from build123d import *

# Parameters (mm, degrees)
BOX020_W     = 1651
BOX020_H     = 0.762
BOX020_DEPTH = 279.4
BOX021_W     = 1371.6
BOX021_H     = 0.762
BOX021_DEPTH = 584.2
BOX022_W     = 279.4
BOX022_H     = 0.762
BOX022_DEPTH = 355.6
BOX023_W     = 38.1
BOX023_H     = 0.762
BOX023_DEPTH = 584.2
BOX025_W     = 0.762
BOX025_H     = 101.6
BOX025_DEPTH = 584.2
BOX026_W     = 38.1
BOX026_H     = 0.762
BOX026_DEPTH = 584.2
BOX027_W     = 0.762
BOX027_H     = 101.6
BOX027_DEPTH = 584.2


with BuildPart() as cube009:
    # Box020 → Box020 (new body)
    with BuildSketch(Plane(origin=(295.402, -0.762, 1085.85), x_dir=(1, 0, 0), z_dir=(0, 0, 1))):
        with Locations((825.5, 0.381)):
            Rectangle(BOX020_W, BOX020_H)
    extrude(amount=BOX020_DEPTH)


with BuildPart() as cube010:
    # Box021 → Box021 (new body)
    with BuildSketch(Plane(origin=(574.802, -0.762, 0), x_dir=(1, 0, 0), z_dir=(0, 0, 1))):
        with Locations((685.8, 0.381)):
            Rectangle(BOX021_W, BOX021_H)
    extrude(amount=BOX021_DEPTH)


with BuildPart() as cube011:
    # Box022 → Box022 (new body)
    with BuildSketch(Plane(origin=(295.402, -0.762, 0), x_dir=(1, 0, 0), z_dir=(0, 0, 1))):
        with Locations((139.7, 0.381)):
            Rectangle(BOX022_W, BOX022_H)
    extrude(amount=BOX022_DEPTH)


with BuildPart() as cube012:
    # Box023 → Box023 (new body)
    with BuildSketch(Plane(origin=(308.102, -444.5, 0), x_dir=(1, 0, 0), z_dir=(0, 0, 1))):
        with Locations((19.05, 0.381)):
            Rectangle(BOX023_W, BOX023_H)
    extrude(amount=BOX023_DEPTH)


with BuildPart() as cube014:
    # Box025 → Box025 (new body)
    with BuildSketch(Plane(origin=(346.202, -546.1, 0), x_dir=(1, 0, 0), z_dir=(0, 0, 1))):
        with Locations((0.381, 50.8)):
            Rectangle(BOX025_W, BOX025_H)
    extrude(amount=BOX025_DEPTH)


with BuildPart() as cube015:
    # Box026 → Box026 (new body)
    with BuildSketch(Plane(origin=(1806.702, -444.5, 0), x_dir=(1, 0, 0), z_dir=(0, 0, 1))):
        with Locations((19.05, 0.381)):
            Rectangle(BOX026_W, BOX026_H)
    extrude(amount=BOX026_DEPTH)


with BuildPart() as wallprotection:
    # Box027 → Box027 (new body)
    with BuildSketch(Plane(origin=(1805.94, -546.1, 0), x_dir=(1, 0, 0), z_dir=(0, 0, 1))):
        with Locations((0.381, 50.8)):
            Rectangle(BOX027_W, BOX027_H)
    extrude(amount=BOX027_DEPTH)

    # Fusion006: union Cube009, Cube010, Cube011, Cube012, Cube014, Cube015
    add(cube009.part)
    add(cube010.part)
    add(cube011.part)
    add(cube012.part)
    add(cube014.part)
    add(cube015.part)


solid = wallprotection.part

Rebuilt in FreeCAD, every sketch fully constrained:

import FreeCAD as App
import Part
import Sketcher
from FreeCAD import Vector
Q = App.Units.Quantity

doc = App.newDocument("Part")
body = doc.addObject("PartDesign::Body", "Body")

# Sketch on XY plane
sketch1 = body.newObject("Sketcher::SketchObject", "Sketch")
sketch1.AttachmentSupport = (doc.getObject("XY_Plane"), [""])
sketch1.MapMode = "FlatFace"
sketch1.AttachmentOffset = App.Placement(Vector(0, 0, 42.75 * 25.4), App.Rotation())
sketch1.addGeometry([
    Part.LineSegment(Vector(295.4, 0, 0), Vector(295.4, -0.8, 0)),
    Part.LineSegment(Vector(295.4, -0.8, 0), Vector(1946.4, -0.8, 0)),
    Part.LineSegment(Vector(1946.4, -0.8, 0), Vector(1946.4, 0, 0)),
    Part.LineSegment(Vector(1946.4, 0, 0), Vector(295.4, 0, 0)),
], False)
sketch1.addConstraint([
    Sketcher.Constraint("Coincident", 0, 2, 1, 1),
    Sketcher.Constraint("Coincident", 1, 2, 2, 1),
    Sketcher.Constraint("Coincident", 2, 2, 3, 1),
    Sketcher.Constraint("Coincident", 3, 2, 0, 1),
    Sketcher.Constraint("Vertical", 0),
    Sketcher.Constraint("Horizontal", 1),
    Sketcher.Constraint("Vertical", 2),
    Sketcher.Constraint("Horizontal", 3),
    Sketcher.Constraint("PointOnObject", 2, 2, -1),
    Sketcher.Constraint("DistanceX", 1, 1, 1, 2, Q("65 in")),
    Sketcher.Constraint("DistanceY", 0, 2, 0, 1, Q("0.03 in")),
    Sketcher.Constraint("DistanceX", -1, 1, 0, 2, Q("11.63 in")),
])
pad1 = body.newObject("PartDesign::Pad", "Pad")
pad1.Profile = sketch1
pad1.Length = Q("11 in")
body2 = doc.addObject("PartDesign::Body", "Body001")

# Sketch on XY plane
sketch2 = body2.newObject("Sketcher::SketchObject", "Sketch001")
sketch2.AttachmentSupport = (doc.getObject("XY_Plane001"), [""])
sketch2.MapMode = "FlatFace"
sketch2.addGeometry([
    Part.LineSegment(Vector(574.8, 0, 0), Vector(574.8, -0.8, 0)),
    Part.LineSegment(Vector(574.8, -0.8, 0), Vector(1946.4, -0.8, 0)),
    Part.LineSegment(Vector(1946.4, -0.8, 0), Vector(1946.4, 0, 0)),
    Part.LineSegment(Vector(1946.4, 0, 0), Vector(574.8, 0, 0)),
], False)
sketch2.addConstraint([
    Sketcher.Constraint("Coincident", 0, 2, 1, 1),
    Sketcher.Constraint("Coincident", 1, 2, 2, 1),
    Sketcher.Constraint("Coincident", 2, 2, 3, 1),
    Sketcher.Constraint("Coincident", 3, 2, 0, 1),
    Sketcher.Constraint("Vertical", 0),
    Sketcher.Constraint("Horizontal", 1),
    Sketcher.Constraint("Vertical", 2),
    Sketcher.Constraint("Horizontal", 3),
    Sketcher.Constraint("PointOnObject", 2, 2, -1),
    Sketcher.Constraint("DistanceX", 1, 1, 1, 2, Q("54 in")),
    Sketcher.Constraint("DistanceY", 0, 2, 0, 1, Q("0.03 in")),
    Sketcher.Constraint("DistanceX", -1, 1, 0, 2, Q("22.63 in")),
])
pad2 = body2.newObject("PartDesign::Pad", "Pad001")
pad2.Profile = sketch2
pad2.Length = Q("23 in")
body3 = doc.addObject("PartDesign::Body", "Body002")

# Sketch on XY plane
sketch3 = body3.newObject("Sketcher::SketchObject", "Sketch002")
sketch3.AttachmentSupport = (doc.getObject("XY_Plane002"), [""])
sketch3.MapMode = "FlatFace"
sketch3.addGeometry([
    Part.LineSegment(Vector(295.4, 0, 0), Vector(295.4, -0.8, 0)),
    Part.LineSegment(Vector(295.4, -0.8, 0), Vector(574.8, -0.8, 0)),
    Part.LineSegment(Vector(574.8, -0.8, 0), Vector(574.8, 0, 0)),
    Part.LineSegment(Vector(574.8, 0, 0), Vector(295.4, 0, 0)),
], False)
sketch3.addConstraint([
    Sketcher.Constraint("Coincident", 0, 2, 1, 1),
    Sketcher.Constraint("Coincident", 1, 2, 2, 1),
    Sketcher.Constraint("Coincident", 2, 2, 3, 1),
    Sketcher.Constraint("Coincident", 3, 2, 0, 1),
    Sketcher.Constraint("Vertical", 0),
    Sketcher.Constraint("Horizontal", 1),
    Sketcher.Constraint("Vertical", 2),
    Sketcher.Constraint("Horizontal", 3),
    Sketcher.Constraint("PointOnObject", 2, 2, -1),
    Sketcher.Constraint("DistanceX", 1, 1, 1, 2, Q("11 in")),
    Sketcher.Constraint("DistanceY", 0, 2, 0, 1, Q("0.03 in")),
    Sketcher.Constraint("DistanceX", -1, 1, 0, 2, Q("11.63 in")),
])
pad3 = body3.newObject("PartDesign::Pad", "Pad002")
pad3.Profile = sketch3
pad3.Length = Q("14 in")
body4 = doc.addObject("PartDesign::Body", "Body003")

# Sketch on XY plane
sketch4 = body4.newObject("Sketcher::SketchObject", "Sketch003")
sketch4.AttachmentSupport = (doc.getObject("XY_Plane003"), [""])
sketch4.MapMode = "FlatFace"
sketch4.addGeometry([
    Part.LineSegment(Vector(308.1, -443.7, 0), Vector(308.1, -444.5, 0)),
    Part.LineSegment(Vector(308.1, -444.5, 0), Vector(346.2, -444.5, 0)),
    Part.LineSegment(Vector(346.2, -444.5, 0), Vector(346.2, -443.7, 0)),
    Part.LineSegment(Vector(346.2, -443.7, 0), Vector(308.1, -443.7, 0)),
], False)
sketch4.addConstraint([
    Sketcher.Constraint("Coincident", 0, 2, 1, 1),
    Sketcher.Constraint("Coincident", 1, 2, 2, 1),
    Sketcher.Constraint("Coincident", 2, 2, 3, 1),
    Sketcher.Constraint("Coincident", 3, 2, 0, 1),
    Sketcher.Constraint("Vertical", 0),
    Sketcher.Constraint("Horizontal", 1),
    Sketcher.Constraint("Vertical", 2),
    Sketcher.Constraint("Horizontal", 3),
    Sketcher.Constraint("DistanceX", 1, 1, 1, 2, Q("1.5 in")),
    Sketcher.Constraint("DistanceY", 0, 2, 0, 1, Q("0.03 in")),
    Sketcher.Constraint("DistanceY", 0, 2, -1, 1, Q("17.5 in")),
    Sketcher.Constraint("DistanceX", -1, 1, 0, 2, Q("12.13 in")),
])
pad4 = body4.newObject("PartDesign::Pad", "Pad003")
pad4.Profile = sketch4
pad4.Length = Q("23 in")
body5 = doc.addObject("PartDesign::Body", "Body004")

# Sketch on XY plane
sketch5 = body5.newObject("Sketcher::SketchObject", "Sketch004")
sketch5.AttachmentSupport = (doc.getObject("XY_Plane004"), [""])
sketch5.MapMode = "FlatFace"
sketch5.addGeometry([
    Part.LineSegment(Vector(346.2, -444.5, 0), Vector(346.2, -546.1, 0)),
    Part.LineSegment(Vector(346.2, -546.1, 0), Vector(347, -546.1, 0)),
    Part.LineSegment(Vector(347, -546.1, 0), Vector(347, -444.5, 0)),
    Part.LineSegment(Vector(347, -444.5, 0), Vector(346.2, -444.5, 0)),
], False)
sketch5.addConstraint([
    Sketcher.Constraint("Coincident", 0, 2, 1, 1),
    Sketcher.Constraint("Coincident", 1, 2, 2, 1),
    Sketcher.Constraint("Coincident", 2, 2, 3, 1),
    Sketcher.Constraint("Coincident", 3, 2, 0, 1),
    Sketcher.Constraint("Vertical", 0),
    Sketcher.Constraint("Horizontal", 1),
    Sketcher.Constraint("Vertical", 2),
    Sketcher.Constraint("Horizontal", 3),
    Sketcher.Constraint("DistanceY", 0, 2, 0, 1, Q("4 in")),
    Sketcher.Constraint("DistanceX", 1, 1, 1, 2, Q("0.03 in")),
    Sketcher.Constraint("DistanceY", 0, 2, -1, 1, Q("21.5 in")),
    Sketcher.Constraint("DistanceX", -1, 1, 0, 2, Q("13.63 in")),
])
pad5 = body5.newObject("PartDesign::Pad", "Pad004")
pad5.Profile = sketch5
pad5.Length = Q("23 in")
body6 = doc.addObject("PartDesign::Body", "Body005")

# Sketch on XY plane
sketch6 = body6.newObject("Sketcher::SketchObject", "Sketch005")
sketch6.AttachmentSupport = (doc.getObject("XY_Plane005"), [""])
sketch6.MapMode = "FlatFace"
sketch6.addGeometry([
    Part.LineSegment(Vector(1806.7, -443.7, 0), Vector(1806.7, -444.5, 0)),
    Part.LineSegment(Vector(1806.7, -444.5, 0), Vector(1844.8, -444.5, 0)),
    Part.LineSegment(Vector(1844.8, -444.5, 0), Vector(1844.8, -443.7, 0)),
    Part.LineSegment(Vector(1844.8, -443.7, 0), Vector(1806.7, -443.7, 0)),
], False)
sketch6.addConstraint([
    Sketcher.Constraint("Coincident", 0, 2, 1, 1),
    Sketcher.Constraint("Coincident", 1, 2, 2, 1),
    Sketcher.Constraint("Coincident", 2, 2, 3, 1),
    Sketcher.Constraint("Coincident", 3, 2, 0, 1),
    Sketcher.Constraint("Vertical", 0),
    Sketcher.Constraint("Horizontal", 1),
    Sketcher.Constraint("Vertical", 2),
    Sketcher.Constraint("Horizontal", 3),
    Sketcher.Constraint("DistanceX", 1, 1, 1, 2, Q("1.5 in")),
    Sketcher.Constraint("DistanceY", 0, 2, 0, 1, Q("0.03 in")),
    Sketcher.Constraint("DistanceY", 0, 2, -1, 1, Q("17.5 in")),
    Sketcher.Constraint("DistanceX", -1, 1, 0, 2, Q("71.13 in")),
])
pad6 = body6.newObject("PartDesign::Pad", "Pad005")
pad6.Profile = sketch6
pad6.Length = Q("23 in")
body7 = doc.addObject("PartDesign::Body", "Body006")
body7.AllowCompound = True

# Sketch on XY plane
sketch7 = body7.newObject("Sketcher::SketchObject", "Sketch006")
sketch7.AttachmentSupport = (doc.getObject("XY_Plane006"), [""])
sketch7.MapMode = "FlatFace"
sketch7.addGeometry([
    Part.LineSegment(Vector(1805.9, -444.5, 0), Vector(1805.9, -546.1, 0)),
    Part.LineSegment(Vector(1805.9, -546.1, 0), Vector(1806.7, -546.1, 0)),
    Part.LineSegment(Vector(1806.7, -546.1, 0), Vector(1806.7, -444.5, 0)),
    Part.LineSegment(Vector(1806.7, -444.5, 0), Vector(1805.9, -444.5, 0)),
], False)
sketch7.addConstraint([
    Sketcher.Constraint("Coincident", 0, 2, 1, 1),
    Sketcher.Constraint("Coincident", 1, 2, 2, 1),
    Sketcher.Constraint("Coincident", 2, 2, 3, 1),
    Sketcher.Constraint("Coincident", 3, 2, 0, 1),
    Sketcher.Constraint("Vertical", 0),
    Sketcher.Constraint("Horizontal", 1),
    Sketcher.Constraint("Vertical", 2),
    Sketcher.Constraint("Horizontal", 3),
    Sketcher.Constraint("DistanceY", 0, 2, 0, 1, Q("4 in")),
    Sketcher.Constraint("DistanceX", 1, 1, 1, 2, Q("0.03 in")),
    Sketcher.Constraint("DistanceX", -1, 1, 0, 2, Q("71.1 in")),
    Sketcher.Constraint("DistanceY", 0, 2, -1, 1, Q("21.5 in")),
])
pad7 = body7.newObject("PartDesign::Pad", "Pad006")
pad7.Profile = sketch7
pad7.Length = Q("23 in")
doc.recompute()

boolean = body7.newObject("PartDesign::Boolean", "Boolean")
boolean.Type = "Fuse"
boolean.addObjects([body])
doc.recompute()

boolean2 = body7.newObject("PartDesign::Boolean", "Boolean001")
boolean2.Type = "Fuse"
boolean2.addObjects([body2])
doc.recompute()

boolean3 = body7.newObject("PartDesign::Boolean", "Boolean002")
boolean3.Type = "Fuse"
boolean3.addObjects([body3])
doc.recompute()

boolean4 = body7.newObject("PartDesign::Boolean", "Boolean003")
boolean4.Type = "Fuse"
boolean4.addObjects([body4])
doc.recompute()

boolean5 = body7.newObject("PartDesign::Boolean", "Boolean004")
boolean5.Type = "Fuse"
boolean5.addObjects([body5])
doc.recompute()

boolean6 = body7.newObject("PartDesign::Boolean", "Boolean005")
boolean6.Type = "Fuse"
boolean6.addObjects([body6])

doc.recompute()
